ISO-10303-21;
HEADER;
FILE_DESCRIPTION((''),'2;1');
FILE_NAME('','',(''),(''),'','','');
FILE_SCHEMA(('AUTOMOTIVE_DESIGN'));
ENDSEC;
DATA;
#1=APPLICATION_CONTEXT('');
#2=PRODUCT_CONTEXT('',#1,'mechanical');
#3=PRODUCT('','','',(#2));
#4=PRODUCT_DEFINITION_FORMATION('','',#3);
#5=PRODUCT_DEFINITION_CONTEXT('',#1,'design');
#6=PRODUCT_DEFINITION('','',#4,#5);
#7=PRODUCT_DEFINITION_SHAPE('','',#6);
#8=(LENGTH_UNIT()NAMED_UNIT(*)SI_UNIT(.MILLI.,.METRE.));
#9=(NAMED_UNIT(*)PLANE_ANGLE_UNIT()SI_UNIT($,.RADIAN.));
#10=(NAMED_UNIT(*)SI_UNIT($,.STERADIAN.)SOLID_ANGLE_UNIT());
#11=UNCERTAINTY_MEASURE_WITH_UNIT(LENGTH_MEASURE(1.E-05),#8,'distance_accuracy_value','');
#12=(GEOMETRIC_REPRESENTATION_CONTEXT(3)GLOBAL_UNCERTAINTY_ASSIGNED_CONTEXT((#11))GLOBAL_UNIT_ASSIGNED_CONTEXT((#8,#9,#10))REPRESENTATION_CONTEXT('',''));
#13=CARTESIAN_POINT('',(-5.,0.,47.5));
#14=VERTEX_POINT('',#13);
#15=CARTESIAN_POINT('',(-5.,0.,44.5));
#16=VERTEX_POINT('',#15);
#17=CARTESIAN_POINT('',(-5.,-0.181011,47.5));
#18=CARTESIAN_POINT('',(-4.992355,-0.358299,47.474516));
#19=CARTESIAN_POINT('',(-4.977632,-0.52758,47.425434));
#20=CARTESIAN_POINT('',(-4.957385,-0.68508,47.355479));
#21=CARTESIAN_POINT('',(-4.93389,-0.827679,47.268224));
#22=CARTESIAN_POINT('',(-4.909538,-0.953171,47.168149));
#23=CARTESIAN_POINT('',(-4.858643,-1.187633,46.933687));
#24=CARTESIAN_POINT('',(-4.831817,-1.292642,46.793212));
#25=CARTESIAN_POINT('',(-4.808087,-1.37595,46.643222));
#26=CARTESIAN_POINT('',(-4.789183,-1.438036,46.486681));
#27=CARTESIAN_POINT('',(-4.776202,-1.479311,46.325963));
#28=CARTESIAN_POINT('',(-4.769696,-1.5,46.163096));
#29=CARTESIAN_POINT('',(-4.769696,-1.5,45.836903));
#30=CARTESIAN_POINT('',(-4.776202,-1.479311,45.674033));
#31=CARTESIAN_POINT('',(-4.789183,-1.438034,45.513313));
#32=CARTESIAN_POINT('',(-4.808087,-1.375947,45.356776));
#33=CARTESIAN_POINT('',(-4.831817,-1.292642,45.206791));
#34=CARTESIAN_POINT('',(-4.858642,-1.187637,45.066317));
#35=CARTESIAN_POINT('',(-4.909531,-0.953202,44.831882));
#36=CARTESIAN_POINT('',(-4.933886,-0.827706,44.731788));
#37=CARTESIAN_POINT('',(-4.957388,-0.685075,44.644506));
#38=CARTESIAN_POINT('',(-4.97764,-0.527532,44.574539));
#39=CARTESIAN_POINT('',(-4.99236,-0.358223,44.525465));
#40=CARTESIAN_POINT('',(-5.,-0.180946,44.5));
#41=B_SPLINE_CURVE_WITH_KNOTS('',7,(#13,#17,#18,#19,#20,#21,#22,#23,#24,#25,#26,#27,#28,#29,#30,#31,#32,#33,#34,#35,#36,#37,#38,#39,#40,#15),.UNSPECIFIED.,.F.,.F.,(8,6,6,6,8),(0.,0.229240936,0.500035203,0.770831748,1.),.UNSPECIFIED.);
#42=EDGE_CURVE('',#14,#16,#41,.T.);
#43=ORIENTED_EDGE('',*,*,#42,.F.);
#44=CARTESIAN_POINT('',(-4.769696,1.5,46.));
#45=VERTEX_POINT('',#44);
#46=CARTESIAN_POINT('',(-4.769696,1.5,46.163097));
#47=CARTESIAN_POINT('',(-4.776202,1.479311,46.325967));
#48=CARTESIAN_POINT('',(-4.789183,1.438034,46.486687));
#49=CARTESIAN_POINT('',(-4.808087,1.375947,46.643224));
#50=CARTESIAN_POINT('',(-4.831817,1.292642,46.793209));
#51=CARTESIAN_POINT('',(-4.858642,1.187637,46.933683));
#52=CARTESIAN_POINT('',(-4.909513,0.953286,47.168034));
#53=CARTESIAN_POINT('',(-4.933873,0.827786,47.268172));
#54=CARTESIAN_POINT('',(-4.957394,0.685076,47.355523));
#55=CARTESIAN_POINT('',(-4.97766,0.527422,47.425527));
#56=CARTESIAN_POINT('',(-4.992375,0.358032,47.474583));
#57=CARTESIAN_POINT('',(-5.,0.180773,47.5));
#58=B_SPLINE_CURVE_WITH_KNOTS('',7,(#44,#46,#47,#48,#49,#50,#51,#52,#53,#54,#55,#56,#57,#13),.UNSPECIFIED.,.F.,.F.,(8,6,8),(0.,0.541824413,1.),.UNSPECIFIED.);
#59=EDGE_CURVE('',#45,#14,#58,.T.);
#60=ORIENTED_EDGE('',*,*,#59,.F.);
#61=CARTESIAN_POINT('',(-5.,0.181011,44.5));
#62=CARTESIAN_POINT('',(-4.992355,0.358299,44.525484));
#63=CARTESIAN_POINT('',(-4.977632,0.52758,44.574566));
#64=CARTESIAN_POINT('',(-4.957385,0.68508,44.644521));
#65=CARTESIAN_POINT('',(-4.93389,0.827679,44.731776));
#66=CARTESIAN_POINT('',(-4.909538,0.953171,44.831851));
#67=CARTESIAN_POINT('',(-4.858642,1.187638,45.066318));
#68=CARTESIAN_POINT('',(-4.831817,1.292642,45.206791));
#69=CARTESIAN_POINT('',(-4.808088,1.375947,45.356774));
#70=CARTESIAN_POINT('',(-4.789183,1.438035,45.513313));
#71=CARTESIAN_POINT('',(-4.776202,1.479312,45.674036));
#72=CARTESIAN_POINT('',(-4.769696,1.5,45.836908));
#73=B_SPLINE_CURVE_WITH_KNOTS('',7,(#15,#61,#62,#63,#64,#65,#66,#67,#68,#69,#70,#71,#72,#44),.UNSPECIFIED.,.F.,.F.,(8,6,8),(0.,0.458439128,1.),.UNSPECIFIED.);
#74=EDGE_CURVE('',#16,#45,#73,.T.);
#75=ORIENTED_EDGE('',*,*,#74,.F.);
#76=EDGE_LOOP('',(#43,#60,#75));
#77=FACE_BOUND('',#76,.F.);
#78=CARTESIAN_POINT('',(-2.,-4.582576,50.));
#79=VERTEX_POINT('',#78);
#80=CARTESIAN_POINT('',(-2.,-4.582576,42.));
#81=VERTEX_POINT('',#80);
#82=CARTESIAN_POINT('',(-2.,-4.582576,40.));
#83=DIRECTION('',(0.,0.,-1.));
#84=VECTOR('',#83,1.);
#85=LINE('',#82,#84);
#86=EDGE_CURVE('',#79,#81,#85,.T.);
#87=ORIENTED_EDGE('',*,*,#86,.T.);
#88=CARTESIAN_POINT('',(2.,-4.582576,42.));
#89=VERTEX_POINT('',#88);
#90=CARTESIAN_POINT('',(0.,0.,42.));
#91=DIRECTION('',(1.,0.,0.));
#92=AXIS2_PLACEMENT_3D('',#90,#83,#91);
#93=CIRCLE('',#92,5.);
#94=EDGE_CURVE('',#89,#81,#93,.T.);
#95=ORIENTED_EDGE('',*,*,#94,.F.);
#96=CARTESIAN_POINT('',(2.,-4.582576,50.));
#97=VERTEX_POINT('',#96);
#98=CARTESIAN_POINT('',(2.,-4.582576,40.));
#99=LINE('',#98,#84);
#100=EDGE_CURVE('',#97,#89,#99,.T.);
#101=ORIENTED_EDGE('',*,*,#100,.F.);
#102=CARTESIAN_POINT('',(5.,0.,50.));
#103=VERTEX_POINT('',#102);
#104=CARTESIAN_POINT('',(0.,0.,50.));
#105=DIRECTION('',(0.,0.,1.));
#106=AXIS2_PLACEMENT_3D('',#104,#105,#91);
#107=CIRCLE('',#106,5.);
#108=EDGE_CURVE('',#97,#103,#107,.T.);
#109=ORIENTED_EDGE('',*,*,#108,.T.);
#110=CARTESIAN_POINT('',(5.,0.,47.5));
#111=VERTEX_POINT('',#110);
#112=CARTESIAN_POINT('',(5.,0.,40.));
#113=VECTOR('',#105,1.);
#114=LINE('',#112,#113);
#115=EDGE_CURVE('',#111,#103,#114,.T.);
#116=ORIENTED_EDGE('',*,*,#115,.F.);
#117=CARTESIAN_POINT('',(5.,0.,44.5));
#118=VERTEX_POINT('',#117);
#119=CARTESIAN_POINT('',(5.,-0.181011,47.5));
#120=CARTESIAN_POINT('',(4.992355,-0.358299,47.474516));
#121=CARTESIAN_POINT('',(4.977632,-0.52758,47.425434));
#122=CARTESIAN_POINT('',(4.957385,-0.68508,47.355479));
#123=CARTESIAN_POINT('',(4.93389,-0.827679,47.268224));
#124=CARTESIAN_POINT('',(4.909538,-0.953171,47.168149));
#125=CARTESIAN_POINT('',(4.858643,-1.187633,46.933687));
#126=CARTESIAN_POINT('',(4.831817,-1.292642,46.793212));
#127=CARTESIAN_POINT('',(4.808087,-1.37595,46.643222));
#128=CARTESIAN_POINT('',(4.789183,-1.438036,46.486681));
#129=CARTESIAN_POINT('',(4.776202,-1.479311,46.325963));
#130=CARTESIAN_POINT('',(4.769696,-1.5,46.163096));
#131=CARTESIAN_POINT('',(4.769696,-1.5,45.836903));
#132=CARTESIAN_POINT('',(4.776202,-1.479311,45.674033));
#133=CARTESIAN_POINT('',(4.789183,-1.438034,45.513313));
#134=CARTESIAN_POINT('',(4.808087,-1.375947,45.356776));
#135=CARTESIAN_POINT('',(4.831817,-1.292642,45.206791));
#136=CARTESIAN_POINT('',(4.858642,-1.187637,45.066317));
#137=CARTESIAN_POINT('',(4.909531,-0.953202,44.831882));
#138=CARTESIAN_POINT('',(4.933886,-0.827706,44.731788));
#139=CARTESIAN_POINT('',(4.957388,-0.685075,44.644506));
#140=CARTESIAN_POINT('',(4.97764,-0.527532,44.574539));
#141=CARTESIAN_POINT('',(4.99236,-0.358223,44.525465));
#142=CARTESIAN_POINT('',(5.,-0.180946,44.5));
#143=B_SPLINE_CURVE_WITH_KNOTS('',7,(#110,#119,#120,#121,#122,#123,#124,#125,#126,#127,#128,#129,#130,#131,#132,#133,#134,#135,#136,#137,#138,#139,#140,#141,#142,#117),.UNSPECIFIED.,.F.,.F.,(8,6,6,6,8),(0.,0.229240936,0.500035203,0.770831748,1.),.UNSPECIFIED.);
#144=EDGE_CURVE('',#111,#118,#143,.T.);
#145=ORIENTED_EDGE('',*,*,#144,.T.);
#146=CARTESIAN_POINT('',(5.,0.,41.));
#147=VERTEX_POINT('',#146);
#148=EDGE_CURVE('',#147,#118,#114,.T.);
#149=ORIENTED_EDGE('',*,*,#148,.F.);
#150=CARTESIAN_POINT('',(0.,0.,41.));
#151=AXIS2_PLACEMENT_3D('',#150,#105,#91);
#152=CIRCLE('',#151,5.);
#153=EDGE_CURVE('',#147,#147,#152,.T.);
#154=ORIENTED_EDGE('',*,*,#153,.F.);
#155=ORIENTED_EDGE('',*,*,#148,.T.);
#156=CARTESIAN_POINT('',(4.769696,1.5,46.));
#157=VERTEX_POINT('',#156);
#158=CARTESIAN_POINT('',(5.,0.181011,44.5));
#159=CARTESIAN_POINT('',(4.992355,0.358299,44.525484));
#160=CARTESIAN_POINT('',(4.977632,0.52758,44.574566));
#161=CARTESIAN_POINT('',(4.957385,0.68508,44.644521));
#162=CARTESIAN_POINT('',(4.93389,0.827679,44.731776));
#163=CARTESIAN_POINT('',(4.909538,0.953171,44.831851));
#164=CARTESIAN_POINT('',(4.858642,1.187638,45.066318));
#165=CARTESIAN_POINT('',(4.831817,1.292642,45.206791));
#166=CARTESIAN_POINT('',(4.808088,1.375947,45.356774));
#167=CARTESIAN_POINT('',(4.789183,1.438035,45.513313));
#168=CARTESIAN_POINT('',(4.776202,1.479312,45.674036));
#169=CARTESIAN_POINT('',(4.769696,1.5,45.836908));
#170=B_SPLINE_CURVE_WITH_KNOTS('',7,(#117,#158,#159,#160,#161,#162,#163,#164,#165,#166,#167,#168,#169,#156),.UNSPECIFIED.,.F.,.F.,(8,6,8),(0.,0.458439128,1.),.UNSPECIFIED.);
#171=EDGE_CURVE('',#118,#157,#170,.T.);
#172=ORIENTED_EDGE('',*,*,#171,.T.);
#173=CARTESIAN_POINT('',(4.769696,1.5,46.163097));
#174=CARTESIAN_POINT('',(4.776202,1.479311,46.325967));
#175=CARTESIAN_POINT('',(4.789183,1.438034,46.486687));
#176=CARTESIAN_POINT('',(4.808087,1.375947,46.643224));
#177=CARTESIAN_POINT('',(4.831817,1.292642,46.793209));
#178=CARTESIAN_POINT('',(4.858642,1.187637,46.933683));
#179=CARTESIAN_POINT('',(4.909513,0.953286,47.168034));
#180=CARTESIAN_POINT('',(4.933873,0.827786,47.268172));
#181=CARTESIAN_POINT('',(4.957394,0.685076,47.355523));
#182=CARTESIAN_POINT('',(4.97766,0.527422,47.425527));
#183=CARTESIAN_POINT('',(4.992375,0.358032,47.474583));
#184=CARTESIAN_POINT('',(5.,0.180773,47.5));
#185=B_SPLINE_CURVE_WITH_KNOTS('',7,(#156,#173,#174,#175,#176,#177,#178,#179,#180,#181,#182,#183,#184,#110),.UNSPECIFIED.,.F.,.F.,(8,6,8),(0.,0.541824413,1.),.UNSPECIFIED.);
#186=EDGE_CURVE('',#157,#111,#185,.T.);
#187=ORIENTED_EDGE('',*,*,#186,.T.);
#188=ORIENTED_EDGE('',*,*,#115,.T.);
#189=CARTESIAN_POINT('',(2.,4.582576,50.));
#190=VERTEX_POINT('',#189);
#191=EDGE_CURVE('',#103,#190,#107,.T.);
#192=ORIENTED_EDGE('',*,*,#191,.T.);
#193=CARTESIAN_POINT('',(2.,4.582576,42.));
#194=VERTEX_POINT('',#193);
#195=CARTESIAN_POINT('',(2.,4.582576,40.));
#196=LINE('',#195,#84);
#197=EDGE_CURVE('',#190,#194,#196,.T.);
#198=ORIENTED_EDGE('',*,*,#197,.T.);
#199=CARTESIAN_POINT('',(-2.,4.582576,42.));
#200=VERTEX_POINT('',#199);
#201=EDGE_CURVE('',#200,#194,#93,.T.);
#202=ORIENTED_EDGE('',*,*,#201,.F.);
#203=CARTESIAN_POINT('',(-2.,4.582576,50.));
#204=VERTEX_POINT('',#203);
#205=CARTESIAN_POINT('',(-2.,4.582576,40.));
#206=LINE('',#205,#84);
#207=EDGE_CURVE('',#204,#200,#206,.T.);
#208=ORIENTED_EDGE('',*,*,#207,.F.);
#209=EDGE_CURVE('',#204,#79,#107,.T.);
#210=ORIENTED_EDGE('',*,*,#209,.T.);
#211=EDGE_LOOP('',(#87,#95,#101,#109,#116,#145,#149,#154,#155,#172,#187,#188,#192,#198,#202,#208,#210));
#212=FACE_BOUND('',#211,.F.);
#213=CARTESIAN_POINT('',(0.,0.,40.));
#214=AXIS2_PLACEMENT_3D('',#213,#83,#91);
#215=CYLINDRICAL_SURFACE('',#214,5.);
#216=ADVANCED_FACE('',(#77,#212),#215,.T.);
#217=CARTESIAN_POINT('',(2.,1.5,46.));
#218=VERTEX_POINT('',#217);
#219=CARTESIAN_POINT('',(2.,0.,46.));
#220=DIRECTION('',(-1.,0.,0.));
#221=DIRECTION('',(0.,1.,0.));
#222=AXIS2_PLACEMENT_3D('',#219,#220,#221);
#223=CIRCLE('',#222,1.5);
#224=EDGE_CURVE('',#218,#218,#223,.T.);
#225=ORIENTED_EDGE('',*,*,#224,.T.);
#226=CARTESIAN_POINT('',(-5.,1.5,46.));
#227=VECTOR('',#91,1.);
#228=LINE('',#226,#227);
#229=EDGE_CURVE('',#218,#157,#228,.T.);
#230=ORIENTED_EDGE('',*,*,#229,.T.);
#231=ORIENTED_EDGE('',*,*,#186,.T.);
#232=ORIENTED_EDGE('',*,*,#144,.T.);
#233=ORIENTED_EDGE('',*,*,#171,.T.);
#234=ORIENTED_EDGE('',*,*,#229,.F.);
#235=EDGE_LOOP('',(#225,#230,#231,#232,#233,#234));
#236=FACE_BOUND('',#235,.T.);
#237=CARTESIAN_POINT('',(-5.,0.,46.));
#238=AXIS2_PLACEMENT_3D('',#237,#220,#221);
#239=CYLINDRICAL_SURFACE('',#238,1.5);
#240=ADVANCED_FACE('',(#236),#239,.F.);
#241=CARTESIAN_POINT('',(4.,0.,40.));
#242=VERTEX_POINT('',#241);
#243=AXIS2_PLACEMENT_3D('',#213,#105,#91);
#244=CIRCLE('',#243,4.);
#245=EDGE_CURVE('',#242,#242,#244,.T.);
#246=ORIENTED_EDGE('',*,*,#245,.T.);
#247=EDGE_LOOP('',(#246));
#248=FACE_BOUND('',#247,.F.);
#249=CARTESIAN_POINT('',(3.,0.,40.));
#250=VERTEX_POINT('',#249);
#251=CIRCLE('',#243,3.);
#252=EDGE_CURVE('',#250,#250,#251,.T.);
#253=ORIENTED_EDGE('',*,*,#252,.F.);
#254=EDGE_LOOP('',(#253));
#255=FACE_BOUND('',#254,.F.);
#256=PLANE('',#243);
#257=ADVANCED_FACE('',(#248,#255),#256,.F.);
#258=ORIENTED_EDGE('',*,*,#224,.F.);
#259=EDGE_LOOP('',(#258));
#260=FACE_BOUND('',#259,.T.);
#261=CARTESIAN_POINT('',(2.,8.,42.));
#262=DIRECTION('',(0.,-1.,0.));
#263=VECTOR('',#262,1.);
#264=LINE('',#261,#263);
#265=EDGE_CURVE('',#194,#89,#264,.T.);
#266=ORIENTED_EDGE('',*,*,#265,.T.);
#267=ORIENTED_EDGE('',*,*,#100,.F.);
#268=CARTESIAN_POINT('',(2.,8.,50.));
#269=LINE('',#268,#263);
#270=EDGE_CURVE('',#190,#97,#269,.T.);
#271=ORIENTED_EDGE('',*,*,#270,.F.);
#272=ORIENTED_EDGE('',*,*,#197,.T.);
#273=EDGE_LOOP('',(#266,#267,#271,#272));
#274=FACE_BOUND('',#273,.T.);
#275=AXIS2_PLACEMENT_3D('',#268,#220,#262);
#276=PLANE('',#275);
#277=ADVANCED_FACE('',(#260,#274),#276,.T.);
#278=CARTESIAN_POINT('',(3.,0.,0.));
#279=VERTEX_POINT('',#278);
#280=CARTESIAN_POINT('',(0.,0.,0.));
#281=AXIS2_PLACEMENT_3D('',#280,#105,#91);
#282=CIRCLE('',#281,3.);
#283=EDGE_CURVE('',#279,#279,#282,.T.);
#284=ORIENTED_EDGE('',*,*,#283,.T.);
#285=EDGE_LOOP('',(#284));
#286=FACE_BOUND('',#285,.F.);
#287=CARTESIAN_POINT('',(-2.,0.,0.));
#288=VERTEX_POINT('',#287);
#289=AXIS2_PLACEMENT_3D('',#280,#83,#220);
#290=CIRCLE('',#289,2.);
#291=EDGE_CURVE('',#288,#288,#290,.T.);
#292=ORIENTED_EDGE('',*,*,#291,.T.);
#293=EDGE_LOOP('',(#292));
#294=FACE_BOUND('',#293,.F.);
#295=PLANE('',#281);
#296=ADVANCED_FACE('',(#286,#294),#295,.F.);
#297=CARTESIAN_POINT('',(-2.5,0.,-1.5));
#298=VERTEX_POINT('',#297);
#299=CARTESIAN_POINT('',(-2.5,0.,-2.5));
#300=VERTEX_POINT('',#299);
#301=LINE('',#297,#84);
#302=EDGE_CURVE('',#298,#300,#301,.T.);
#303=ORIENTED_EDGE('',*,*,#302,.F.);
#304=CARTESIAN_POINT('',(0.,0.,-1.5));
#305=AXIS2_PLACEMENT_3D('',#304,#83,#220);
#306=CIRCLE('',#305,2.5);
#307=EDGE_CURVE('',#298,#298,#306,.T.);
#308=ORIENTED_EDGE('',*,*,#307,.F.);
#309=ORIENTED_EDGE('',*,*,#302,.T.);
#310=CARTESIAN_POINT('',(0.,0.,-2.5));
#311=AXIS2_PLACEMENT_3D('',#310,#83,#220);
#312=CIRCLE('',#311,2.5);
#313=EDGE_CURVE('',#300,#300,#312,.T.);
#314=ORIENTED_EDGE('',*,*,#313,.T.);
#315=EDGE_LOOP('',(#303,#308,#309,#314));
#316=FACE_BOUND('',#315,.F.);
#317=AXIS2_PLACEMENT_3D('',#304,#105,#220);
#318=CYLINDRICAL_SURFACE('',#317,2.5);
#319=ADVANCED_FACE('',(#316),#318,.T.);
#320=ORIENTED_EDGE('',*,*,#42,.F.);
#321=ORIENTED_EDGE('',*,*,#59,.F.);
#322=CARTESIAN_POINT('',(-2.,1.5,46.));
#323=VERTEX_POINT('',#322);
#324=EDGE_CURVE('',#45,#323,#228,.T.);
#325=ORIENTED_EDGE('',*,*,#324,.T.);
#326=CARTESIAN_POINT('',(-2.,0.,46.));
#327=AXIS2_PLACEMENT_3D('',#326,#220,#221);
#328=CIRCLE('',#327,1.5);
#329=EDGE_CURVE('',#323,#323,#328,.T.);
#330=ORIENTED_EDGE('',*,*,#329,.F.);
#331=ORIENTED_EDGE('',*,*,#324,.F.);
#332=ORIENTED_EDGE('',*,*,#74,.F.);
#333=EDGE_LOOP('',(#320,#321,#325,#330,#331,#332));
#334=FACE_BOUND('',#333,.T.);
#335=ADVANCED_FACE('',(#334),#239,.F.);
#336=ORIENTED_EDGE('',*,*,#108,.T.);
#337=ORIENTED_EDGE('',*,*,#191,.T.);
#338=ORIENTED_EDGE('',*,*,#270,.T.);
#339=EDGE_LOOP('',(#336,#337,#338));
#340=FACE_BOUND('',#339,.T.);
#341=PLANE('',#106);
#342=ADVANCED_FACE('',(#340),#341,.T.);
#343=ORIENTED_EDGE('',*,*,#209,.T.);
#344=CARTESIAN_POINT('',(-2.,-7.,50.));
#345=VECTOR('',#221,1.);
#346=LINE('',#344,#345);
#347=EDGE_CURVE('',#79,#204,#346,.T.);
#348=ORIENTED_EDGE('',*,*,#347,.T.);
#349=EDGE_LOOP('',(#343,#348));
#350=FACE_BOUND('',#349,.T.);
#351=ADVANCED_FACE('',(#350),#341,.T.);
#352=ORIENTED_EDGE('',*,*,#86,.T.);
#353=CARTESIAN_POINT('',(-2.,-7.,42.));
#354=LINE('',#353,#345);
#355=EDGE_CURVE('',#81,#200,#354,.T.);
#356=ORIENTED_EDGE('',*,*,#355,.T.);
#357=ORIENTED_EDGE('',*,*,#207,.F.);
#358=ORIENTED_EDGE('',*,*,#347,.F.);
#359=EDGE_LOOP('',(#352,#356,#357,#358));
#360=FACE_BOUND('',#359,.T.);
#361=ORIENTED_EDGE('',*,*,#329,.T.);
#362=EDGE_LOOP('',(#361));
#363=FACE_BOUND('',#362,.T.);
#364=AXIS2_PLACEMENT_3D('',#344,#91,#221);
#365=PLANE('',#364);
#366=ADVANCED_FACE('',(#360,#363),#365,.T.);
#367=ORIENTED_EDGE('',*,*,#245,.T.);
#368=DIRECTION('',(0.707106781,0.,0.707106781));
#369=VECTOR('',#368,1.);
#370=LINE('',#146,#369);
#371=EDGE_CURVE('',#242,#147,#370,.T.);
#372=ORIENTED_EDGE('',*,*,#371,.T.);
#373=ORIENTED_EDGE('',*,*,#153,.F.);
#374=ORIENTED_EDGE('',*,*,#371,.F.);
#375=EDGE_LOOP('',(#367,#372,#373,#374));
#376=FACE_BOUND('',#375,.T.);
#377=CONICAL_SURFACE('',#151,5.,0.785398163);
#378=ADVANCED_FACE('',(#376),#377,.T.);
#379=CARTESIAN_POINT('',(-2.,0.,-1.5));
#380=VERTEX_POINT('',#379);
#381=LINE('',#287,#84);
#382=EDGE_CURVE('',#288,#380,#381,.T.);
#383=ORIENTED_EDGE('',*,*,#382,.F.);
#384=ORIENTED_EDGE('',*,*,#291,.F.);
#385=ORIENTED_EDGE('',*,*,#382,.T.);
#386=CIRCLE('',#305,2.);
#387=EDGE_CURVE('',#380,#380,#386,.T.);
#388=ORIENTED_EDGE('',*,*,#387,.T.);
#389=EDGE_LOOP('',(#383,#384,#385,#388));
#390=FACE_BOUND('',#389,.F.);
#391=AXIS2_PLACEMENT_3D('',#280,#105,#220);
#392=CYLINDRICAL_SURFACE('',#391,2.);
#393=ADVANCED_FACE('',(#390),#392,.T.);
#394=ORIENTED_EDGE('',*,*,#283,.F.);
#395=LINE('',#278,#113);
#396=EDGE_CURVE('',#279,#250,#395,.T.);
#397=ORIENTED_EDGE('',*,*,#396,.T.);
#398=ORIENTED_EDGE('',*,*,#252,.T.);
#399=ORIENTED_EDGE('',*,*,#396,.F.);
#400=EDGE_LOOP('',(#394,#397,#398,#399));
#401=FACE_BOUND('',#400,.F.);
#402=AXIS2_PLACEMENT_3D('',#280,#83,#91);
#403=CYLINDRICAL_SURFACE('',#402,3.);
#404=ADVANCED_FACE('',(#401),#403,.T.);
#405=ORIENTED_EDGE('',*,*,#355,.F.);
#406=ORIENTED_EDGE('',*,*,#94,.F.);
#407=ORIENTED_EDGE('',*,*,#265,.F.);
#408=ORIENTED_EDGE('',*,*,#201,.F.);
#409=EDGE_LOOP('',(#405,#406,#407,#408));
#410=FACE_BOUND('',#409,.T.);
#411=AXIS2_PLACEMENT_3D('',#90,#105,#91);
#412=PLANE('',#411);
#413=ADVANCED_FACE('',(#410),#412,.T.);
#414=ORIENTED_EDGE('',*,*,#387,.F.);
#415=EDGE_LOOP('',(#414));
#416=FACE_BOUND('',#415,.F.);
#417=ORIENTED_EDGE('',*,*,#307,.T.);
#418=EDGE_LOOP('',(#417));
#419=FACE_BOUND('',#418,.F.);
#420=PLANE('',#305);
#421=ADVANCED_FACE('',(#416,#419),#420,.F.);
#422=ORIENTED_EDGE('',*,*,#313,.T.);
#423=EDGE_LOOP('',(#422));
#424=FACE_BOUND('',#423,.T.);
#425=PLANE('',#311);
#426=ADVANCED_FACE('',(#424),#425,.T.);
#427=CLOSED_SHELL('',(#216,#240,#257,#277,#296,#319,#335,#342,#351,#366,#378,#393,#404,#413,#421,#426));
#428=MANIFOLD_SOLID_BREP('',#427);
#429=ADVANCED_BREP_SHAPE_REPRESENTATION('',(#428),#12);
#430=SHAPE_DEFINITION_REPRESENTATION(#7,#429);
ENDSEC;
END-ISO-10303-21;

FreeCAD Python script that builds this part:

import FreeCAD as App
import Part
import Sketcher


def edges_at(feature, points):
    """Names of the edges that pass closest to the given points."""
    edges = feature.Shape.Edges
    near = lambda p: min(range(len(edges)), key=lambda i: edges[i].distToShape(Part.Vertex(*p))[0])
    return sorted({f"Edge{near(p) + 1}" for p in points})


def add_polygon(sketch, points):
    """Adds a closed chain of lines whose ends are joined by coincident constraints."""
    first, n = sketch.GeometryCount, len(points)
    for a, b in zip(points, points[1:] + points[:1]):
        sketch.addGeometry(Part.LineSegment(App.Vector(*a, 0), App.Vector(*b, 0)), False)
    for i in range(n):
        sketch.addConstraint(Sketcher.Constraint("Coincident", first + i, 2, first + (i + 1) % n, 1))

doc = App.newDocument("Part")
body = doc.addObject("PartDesign::Body", "Body")

sketch1 = body.newObject("Sketcher::SketchObject", "Sketch")
sketch1.AttachmentSupport = (doc.getObject("XY_Plane"), [""])
sketch1.MapMode = "FlatFace"
sketch1.addGeometry(Part.Circle(App.Vector(0, 0, 0), App.Vector(0, 0, 1), 3), False)
sketch1.addConstraint([
    Sketcher.Constraint("Coincident", 0, 3, -1, 1),
    Sketcher.Constraint("Diameter", 0, 6.0),
])
pad1 = body.newObject("PartDesign::Pad", "Pad")
pad1.Profile = sketch1
pad1.Length = 40

sketch2 = body.newObject("Sketcher::SketchObject", "Sketch001")
sketch2.AttachmentSupport = (doc.getObject("XY_Plane"), [""])
sketch2.MapMode = "FlatFace"
sketch2.AttachmentOffset = App.Placement(App.Vector(0, 0, 40), App.Rotation())
sketch2.addGeometry(Part.Circle(App.Vector(0, 0, 0), App.Vector(0, 0, 1), 5), False)
sketch2.addConstraint([
    Sketcher.Constraint("Coincident", 0, 3, -1, 1),
    Sketcher.Constraint("Diameter", 0, 10.0),
])
pad2 = body.newObject("PartDesign::Pad", "Pad001")
pad2.Profile = sketch2
pad2.Length = 10

sketch3 = body.newObject("Sketcher::SketchObject", "Sketch002")
sketch3.AttachmentSupport = (doc.getObject("XY_Plane"), [""])
sketch3.MapMode = "FlatFace"
sketch3.AttachmentOffset = App.Placement(App.Vector(0, 0, 50), App.Rotation())
add_polygon(sketch3, [(2, 8), (-2, 8), (-2, -7), (2, -7)])
sketch3.addConstraint([
    Sketcher.Constraint("Horizontal", 0),
    Sketcher.Constraint("Vertical", 1),
    Sketcher.Constraint("Horizontal", 2),
    Sketcher.Constraint("Vertical", 3),
    Sketcher.Constraint("DistanceX", 0, 2, 0, 1, 4.0),
    Sketcher.Constraint("DistanceY", 1, 2, 1, 1, 15.0),
    Sketcher.Constraint("DistanceX", 0, 2, -1, 1, 2.0),
    Sketcher.Constraint("DistanceY", -1, 1, 0, 2, 8.0),
])
pocket1 = body.newObject("PartDesign::Pocket", "Pocket")
pocket1.Profile = sketch3
pocket1.Length = 8

sketch4 = body.newObject("Sketcher::SketchObject", "Sketch003")
sketch4.AttachmentSupport = (doc.getObject("YZ_Plane"), [""])
sketch4.MapMode = "FlatFace"
sketch4.AttachmentOffset = App.Placement(App.Vector(0, 0, -5), App.Rotation())
sketch4.addGeometry(Part.Circle(App.Vector(0, 46, 0), App.Vector(0, 0, 1), 1.5), False)
sketch4.addConstraint([
    Sketcher.Constraint("PointOnObject", 0, 3, -2),
    Sketcher.Constraint("Diameter", 0, 3.0),
    Sketcher.Constraint("DistanceY", -1, 1, 0, 3, 46.0),
])
pocket2 = body.newObject("PartDesign::Pocket", "Pocket001")
pocket2.Profile = sketch4
pocket2.Length = 10
pocket2.Reversed = True

sketch5 = body.newObject("Sketcher::SketchObject", "Sketch004")
sketch5.AttachmentSupport = (doc.getObject("XY_Plane"), [""])
sketch5.MapMode = "FlatFace"
sketch5.addGeometry(Part.Circle(App.Vector(0, 0, 0), App.Vector(0, 0, 1), 2), False)
sketch5.addConstraint([
    Sketcher.Constraint("Coincident", 0, 3, -1, 1),
    Sketcher.Constraint("Diameter", 0, 4.0),
])
pad3 = body.newObject("PartDesign::Pad", "Pad002")
pad3.Profile = sketch5
pad3.Length = 1.5
pad3.Reversed = True

sketch6 = body.newObject("Sketcher::SketchObject", "Sketch005")
sketch6.AttachmentSupport = (doc.getObject("XY_Plane"), [""])
sketch6.MapMode = "FlatFace"
sketch6.AttachmentOffset = App.Placement(App.Vector(0, 0, -1.5), App.Rotation())
sketch6.addGeometry(Part.Circle(App.Vector(0, 0, 0), App.Vector(0, 0, 1), 2.5), False)
sketch6.addConstraint([
    Sketcher.Constraint("Coincident", 0, 3, -1, 1),
    Sketcher.Constraint("Diameter", 0, 5.0),
])
pad4 = body.newObject("PartDesign::Pad", "Pad003")
pad4.Profile = sketch6
pad4.Length = 1
pad4.Reversed = True
doc.recompute()

chamfer = body.newObject("PartDesign::Chamfer", "Chamfer")
chamfer.Base = (pad4, edges_at(pad4, [(-5, 0, 40)]))
chamfer.Size = 1

doc.recompute()
